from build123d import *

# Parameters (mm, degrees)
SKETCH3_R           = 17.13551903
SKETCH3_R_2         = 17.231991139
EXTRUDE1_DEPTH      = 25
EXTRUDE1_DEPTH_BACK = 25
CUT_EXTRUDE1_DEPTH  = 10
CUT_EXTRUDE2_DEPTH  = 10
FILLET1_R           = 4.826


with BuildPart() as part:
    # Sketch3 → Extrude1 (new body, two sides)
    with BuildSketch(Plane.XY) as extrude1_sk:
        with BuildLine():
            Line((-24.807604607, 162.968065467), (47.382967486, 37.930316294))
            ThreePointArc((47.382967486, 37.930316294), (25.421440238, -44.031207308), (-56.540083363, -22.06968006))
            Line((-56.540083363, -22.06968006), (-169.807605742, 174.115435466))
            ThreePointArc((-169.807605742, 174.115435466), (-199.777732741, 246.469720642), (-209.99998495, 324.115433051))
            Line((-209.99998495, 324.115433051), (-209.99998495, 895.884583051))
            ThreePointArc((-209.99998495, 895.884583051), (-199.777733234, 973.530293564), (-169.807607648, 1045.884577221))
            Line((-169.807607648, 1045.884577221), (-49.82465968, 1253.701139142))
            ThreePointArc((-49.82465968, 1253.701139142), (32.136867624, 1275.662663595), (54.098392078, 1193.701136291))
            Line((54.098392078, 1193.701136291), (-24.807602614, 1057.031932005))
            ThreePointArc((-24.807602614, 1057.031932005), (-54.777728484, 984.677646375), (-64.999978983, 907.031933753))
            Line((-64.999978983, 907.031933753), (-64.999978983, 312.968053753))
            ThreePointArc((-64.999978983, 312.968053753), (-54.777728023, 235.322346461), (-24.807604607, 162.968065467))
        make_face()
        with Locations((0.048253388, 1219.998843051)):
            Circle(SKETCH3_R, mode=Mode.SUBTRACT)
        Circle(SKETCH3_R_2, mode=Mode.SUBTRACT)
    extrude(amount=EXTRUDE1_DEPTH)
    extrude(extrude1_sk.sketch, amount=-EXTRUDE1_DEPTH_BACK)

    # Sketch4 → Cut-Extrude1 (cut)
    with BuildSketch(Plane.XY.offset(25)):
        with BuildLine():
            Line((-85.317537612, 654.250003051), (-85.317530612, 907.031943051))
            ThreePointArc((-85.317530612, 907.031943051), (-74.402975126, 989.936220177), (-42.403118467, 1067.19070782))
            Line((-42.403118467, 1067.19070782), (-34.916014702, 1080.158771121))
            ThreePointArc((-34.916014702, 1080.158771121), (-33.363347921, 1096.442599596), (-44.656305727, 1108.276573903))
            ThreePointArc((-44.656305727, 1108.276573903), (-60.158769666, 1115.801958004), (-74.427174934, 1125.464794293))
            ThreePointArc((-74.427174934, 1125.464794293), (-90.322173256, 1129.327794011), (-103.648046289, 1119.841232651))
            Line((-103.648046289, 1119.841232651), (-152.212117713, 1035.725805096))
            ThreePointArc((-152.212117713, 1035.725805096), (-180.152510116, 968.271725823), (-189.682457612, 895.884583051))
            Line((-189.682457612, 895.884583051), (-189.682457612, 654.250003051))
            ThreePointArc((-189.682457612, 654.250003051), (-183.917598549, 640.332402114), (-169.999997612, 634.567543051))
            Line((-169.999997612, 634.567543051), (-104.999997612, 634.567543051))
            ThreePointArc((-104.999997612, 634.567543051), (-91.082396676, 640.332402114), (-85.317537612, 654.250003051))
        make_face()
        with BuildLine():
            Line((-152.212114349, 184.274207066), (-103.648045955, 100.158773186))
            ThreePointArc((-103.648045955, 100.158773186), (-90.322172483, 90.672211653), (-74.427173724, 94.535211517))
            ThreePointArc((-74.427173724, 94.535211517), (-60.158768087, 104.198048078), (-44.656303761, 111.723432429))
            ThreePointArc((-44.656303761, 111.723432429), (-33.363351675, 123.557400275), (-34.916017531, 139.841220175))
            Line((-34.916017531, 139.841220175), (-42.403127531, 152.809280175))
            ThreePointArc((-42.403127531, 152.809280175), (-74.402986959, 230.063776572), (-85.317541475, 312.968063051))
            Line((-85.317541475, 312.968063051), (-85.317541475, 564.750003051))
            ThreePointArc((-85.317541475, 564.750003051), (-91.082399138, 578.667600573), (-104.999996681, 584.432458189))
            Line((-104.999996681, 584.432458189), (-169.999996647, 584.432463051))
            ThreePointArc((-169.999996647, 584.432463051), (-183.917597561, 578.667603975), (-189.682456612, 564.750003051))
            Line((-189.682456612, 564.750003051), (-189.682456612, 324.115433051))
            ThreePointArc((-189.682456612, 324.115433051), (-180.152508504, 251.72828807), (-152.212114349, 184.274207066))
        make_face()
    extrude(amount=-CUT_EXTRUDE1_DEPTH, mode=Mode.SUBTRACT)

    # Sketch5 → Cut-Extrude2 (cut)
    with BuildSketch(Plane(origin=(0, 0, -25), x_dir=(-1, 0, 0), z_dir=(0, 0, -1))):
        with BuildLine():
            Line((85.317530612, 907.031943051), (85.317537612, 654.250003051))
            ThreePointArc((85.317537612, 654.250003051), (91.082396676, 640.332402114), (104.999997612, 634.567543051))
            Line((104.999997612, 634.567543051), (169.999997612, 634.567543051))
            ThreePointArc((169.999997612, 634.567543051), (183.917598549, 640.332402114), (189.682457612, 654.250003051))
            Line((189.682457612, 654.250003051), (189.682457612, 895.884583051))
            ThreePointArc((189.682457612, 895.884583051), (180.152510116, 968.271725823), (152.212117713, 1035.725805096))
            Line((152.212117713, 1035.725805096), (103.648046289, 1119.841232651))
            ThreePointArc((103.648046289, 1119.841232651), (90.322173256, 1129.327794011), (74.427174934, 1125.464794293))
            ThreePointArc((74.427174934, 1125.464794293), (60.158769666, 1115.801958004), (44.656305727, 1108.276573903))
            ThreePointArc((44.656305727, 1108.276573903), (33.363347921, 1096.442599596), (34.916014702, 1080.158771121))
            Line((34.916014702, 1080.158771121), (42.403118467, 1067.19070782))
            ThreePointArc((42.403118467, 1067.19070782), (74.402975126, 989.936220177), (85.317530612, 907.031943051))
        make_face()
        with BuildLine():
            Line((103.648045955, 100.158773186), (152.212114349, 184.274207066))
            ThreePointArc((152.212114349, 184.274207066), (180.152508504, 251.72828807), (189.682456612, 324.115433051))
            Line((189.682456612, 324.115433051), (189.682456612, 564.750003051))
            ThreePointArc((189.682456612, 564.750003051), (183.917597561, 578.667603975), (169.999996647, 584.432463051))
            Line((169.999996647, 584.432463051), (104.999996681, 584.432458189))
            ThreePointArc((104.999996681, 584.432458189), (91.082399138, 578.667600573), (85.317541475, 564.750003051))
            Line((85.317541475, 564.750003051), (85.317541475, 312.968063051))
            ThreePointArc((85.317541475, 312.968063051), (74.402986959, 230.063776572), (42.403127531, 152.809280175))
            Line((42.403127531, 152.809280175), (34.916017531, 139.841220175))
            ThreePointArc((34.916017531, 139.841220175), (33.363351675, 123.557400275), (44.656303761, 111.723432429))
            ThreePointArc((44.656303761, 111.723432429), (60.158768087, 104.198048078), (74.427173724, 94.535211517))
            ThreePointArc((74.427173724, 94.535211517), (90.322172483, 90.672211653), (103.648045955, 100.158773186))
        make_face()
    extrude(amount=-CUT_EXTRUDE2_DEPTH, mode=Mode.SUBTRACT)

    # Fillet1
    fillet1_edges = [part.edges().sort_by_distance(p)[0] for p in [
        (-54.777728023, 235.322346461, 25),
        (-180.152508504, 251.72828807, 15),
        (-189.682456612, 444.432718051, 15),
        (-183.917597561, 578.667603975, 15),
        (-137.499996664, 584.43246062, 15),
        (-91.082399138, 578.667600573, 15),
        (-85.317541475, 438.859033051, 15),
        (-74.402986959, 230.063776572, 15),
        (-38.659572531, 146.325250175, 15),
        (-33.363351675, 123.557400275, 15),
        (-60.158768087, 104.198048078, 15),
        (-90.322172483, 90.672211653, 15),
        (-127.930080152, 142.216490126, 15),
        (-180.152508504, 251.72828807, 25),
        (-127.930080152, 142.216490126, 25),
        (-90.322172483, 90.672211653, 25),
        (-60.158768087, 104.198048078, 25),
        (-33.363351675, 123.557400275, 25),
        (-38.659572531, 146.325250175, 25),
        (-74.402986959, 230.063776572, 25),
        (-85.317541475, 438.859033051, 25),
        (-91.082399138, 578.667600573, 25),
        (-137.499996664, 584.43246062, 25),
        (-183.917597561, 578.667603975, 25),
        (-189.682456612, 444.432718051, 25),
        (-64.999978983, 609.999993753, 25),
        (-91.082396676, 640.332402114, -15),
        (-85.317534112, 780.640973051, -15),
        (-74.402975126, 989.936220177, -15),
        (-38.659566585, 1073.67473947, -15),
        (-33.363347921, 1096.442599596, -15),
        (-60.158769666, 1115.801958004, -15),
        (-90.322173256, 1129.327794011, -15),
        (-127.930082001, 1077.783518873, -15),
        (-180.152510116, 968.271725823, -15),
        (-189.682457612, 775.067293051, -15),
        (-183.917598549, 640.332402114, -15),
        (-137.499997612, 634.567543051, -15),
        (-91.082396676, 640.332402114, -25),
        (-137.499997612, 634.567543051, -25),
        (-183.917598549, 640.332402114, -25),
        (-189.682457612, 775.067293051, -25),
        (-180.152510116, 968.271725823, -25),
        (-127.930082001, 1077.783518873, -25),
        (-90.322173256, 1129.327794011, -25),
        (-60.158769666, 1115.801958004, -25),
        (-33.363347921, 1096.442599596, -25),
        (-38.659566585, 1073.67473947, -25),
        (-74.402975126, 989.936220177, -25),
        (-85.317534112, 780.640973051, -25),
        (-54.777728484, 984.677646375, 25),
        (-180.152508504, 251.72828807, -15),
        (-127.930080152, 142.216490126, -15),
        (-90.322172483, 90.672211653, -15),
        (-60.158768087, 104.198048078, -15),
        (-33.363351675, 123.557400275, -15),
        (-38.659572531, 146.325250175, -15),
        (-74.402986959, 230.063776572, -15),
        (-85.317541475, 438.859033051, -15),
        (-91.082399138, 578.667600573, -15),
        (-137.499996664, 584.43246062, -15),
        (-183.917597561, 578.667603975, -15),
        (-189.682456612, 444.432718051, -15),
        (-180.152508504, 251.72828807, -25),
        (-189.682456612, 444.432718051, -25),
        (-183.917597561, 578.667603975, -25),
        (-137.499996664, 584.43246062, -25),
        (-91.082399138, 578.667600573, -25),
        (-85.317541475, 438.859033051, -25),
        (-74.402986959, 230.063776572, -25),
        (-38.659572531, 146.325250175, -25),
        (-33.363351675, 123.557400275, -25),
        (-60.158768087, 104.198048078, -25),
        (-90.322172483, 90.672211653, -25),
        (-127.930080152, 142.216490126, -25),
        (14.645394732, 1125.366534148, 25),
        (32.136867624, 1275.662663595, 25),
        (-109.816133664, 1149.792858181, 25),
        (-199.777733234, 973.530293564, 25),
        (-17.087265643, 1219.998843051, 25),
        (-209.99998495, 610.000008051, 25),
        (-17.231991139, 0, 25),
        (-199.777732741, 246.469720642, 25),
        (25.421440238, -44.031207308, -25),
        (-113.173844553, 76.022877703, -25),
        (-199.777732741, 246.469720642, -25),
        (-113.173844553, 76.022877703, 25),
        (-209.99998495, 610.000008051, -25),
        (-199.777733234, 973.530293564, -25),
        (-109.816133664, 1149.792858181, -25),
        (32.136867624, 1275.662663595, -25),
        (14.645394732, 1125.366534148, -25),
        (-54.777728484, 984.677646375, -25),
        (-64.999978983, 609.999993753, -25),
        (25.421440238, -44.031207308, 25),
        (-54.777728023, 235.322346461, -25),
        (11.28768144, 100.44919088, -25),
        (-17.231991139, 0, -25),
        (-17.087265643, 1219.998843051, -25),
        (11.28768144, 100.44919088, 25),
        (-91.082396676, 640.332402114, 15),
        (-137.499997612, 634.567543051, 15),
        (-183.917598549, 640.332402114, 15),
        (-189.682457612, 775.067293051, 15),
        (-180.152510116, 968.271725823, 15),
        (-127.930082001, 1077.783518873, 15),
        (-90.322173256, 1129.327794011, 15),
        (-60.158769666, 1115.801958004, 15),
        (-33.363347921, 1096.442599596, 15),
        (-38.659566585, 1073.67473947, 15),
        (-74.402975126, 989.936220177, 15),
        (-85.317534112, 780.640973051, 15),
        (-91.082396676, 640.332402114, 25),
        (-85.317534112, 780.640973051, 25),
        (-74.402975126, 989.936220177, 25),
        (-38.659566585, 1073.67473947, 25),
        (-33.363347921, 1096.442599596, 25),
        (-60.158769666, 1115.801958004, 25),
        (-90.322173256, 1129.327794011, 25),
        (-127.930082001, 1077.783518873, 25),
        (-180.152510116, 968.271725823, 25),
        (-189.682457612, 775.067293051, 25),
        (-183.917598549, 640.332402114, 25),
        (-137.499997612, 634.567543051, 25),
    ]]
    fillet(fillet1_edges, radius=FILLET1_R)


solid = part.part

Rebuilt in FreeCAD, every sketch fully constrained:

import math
import FreeCAD as App
import Part
import Sketcher

V = App.Vector


def edges_at(feature, points):
    """Names of the edges that pass closest to the given points."""
    edges = feature.Shape.Edges
    near = lambda p: min(range(len(edges)), key=lambda i: edges[i].distToShape(Part.Vertex(*p))[0])
    return sorted({f"Edge{near(p) + 1}" for p in points})

doc = App.newDocument("Part")
body = doc.addObject("PartDesign::Body", "Body")

sketch1 = body.newObject("Sketcher::SketchObject", "Sketch")
sketch1.AttachmentSupport = (doc.getObject("XY_Plane"), [""])
sketch1.MapMode = "FlatFace"
sketch1.addGeometry([
    Part.LineSegment(V(47.382967, 37.930316, 0), V(-24.807605, 162.968065, 0)),
    Part.ArcOfCircle(Part.Circle(V(235.000006, 312.968054, 0), V(0, 0, 1), 299.999985), math.radians(180), math.radians(209.999999)),
    Part.LineSegment(V(-64.999979, 312.968054, 0), V(-64.999979, 907.031934, 0)),
    Part.ArcOfCircle(Part.Circle(V(235.000002, 907.031941, 0), V(0, 0, 1), 299.999981), math.radians(150), math.radians(180.000001)),
    Part.LineSegment(V(-24.807603, 1057.031932, 0), V(54.098392, 1193.701136, 0)),
    Part.ArcOfCircle(Part.Circle(V(2.136866, 1223.701138, 0), V(0, 0, 1), 60.000002), math.radians(-30), math.radians(150)),
    Part.LineSegment(V(-49.82466, 1253.701139, 0), V(-169.807608, 1045.884577, 0)),
    Part.ArcOfCircle(Part.Circle(V(90.000003, 895.884583, 0), V(0, 0, 1), 299.999988), math.radians(150), math.radians(180)),
    Part.LineSegment(V(-209.999985, 895.884583, 0), V(-209.999985, 324.115433, 0)),
    Part.ArcOfCircle(Part.Circle(V(90.000004, 324.115433, 0), V(0, 0, 1), 299.999989), math.radians(180), math.radians(210.000001)),
    Part.LineSegment(V(-169.807606, 174.115435, 0), V(-56.540083, -22.06968, 0)),
    Part.ArcOfCircle(Part.Circle(V(-4.578558, 7.930318, 0), V(0, 0, 1), 60), math.radians(-150.000002), math.radians(29.999998)),
    Part.Circle(V(0, 0, 0), V(0, 0, 1), 17.231991),
    Part.Circle(V(0.048253, 1219.998843, 0), V(0, 0, 1), 17.135519),
], False)
sketch1.addConstraint([
    Sketcher.Constraint("Coincident", 0, 2, 1, 2),
    Sketcher.Constraint("Coincident", 1, 1, 2, 1),
    Sketcher.Constraint("Coincident", 2, 2, 3, 2),
    Sketcher.Constraint("Coincident", 3, 1, 4, 1),
    Sketcher.Constraint("Coincident", 4, 2, 5, 1),
    Sketcher.Constraint("Coincident", 5, 2, 6, 1),
    Sketcher.Constraint("Coincident", 6, 2, 7, 1),
    Sketcher.Constraint("Coincident", 7, 2, 8, 1),
    Sketcher.Constraint("Coincident", 8, 2, 9, 1),
    Sketcher.Constraint("Coincident", 9, 2, 10, 1),
    Sketcher.Constraint("Coincident", 10, 2, 11, 1),
    Sketcher.Constraint("Coincident", 11, 2, 0, 1),
    Sketcher.Constraint("Vertical", 2),
    Sketcher.Constraint("Vertical", 8),
    Sketcher.Constraint("Coincident", 12, 3, -1, 1),
    Sketcher.Constraint("Radius", 11, 60.0),
    Sketcher.Constraint("DistanceX", 7, 3, 3, 3, 144.999999),
    Sketcher.Constraint("DistanceX", 9, 3, 3, 3, 144.999999),
    Sketcher.Constraint("DistanceY", 2, 2, 3, 1, 149.999998),
    Sketcher.Constraint("DistanceY", 4, 2, 5, 3, 30.000001),
    Sketcher.Constraint("DistanceY", 5, 3, 5, 2, 30.000001),
    Sketcher.Constraint("DistanceX", 9, 2, 0, 2, 145.000001),
    Sketcher.Constraint("DistanceY", 10, 2, 11, 3, 29.999998),
    Sketcher.Constraint("DistanceY", 11, 3, 11, 2, 29.999998),
    Sketcher.Constraint("Diameter", 13, 34.271038),
    Sketcher.Constraint("Radius", 3, 299.999981),
    Sketcher.Constraint("Radius", 7, 299.999988),
    Sketcher.Constraint("Distance", 4, 157.812),
    Sketcher.Constraint("Diameter", 12, 34.463982),
    Sketcher.Constraint("Radius", 1, 299.999985),
    Sketcher.Constraint("Radius", 5, 60.000002),
    Sketcher.Constraint("DistanceY", 2, 1, 2, 2, 594.06388),
    Sketcher.Constraint("DistanceY", 8, 2, 8, 1, 571.76915),
    Sketcher.Constraint("DistanceY", 3, 3, 13, 3, 312.966902),
    Sketcher.Constraint("DistanceY", -1, 1, 3, 3, 907.031941),
    Sketcher.Constraint("DistanceY", -1, 1, 11, 3, 7.930318),
    Sketcher.Constraint("DistanceX", 1, 1, -1, 1, 64.999979),
    Sketcher.Constraint("DistanceX", 5, 2, -1, 1, 49.82466),
    Sketcher.Constraint("DistanceY", -1, 1, 5, 2, 1253.701139),
    Sketcher.Constraint("DistanceY", 7, 3, 3, 3, 11.147358),
    Sketcher.Constraint("DistanceY", 1, 3, 7, 3, 582.916529),
    Sketcher.Constraint("DistanceY", 1, 3, 9, 3, 11.147379),
    Sketcher.Constraint("DistanceX", 11, 3, 9, 3, 94.578562),
    Sketcher.Constraint("DistanceX", 13, 3, 7, 3, 89.95175),
    Sketcher.Constraint("DistanceX", 0, 2, 9, 3, 114.807608),
    Sketcher.Constraint("DistanceX", 6, 2, 2, 2, 104.807629),
    Sketcher.Constraint("DistanceY", 7, 2, 2, 2, 11.147351),
])
pad1 = body.newObject("PartDesign::Pad", "Pad")
pad1.Profile = sketch1
pad1.Type = "TwoLengths"
pad1.Length = 25
pad1.Length2 = 25

sketch2 = body.newObject("Sketcher::SketchObject", "Sketch001")
sketch2.AttachmentSupport = (doc.getObject("XY_Plane"), [""])
sketch2.MapMode = "FlatFace"
sketch2.AttachmentOffset = App.Placement(V(0, 0, 25), App.Rotation())
sketch2.addGeometry([
    Part.LineSegment(V(-85.317538, 654.250003, 0), V(-85.317531, 907.031943, 0)),
    Part.ArcOfCircle(Part.Circle(V(235.000002, 907.031941, 0), V(0, 0, 1), 320.317533), math.radians(150), math.radians(180)),
    Part.LineSegment(V(-42.403118, 1067.190708, 0), V(-34.916015, 1080.158771, 0)),
    Part.ArcOfCircle(Part.Circle(V(-51.961527, 1090.000002, 0), V(0, 0, 1), 19.682462), math.radians(-30.000001), math.radians(68.213205)),
    Part.ArcOfCircle(Part.Circle(V(0.000003, 1220.000003, 0), V(0, 0, 1), 120.31754), math.radians(-128.213212), math.radians(-111.786791)),
    Part.ArcOfCircle(Part.Circle(V(-86.602537, 1110.000003, 0), V(0, 0, 1), 19.682459), math.radians(51.786798), math.radians(150)),
    Part.LineSegment(V(-103.648046, 1119.841233, 0), V(-152.212118, 1035.725805, 0)),
    Part.ArcOfCircle(Part.Circle(V(90.000003, 895.884583, 0), V(0, 0, 1), 279.682461), math.radians(150.000002), math.radians(180)),
    Part.LineSegment(V(-189.682458, 895.884583, 0), V(-189.682458, 654.250003, 0)),
    Part.ArcOfCircle(Part.Circle(V(-169.999998, 654.250003, 0), V(0, 0, 1), 19.68246), math.radians(180), math.radians(270)),
    Part.LineSegment(V(-169.999998, 634.567543, 0), V(-104.999998, 634.567543, 0)),
    Part.ArcOfCircle(Part.Circle(V(-104.999998, 654.250003, 0), V(0, 0, 1), 19.68246), math.radians(-90), math.radians(0)),
    Part.LineSegment(V(-152.212114, 184.274207, 0), V(-103.648046, 100.158773, 0)),
    Part.ArcOfCircle(Part.Circle(V(-86.602536, 110.000003, 0), V(0, 0, 1), 19.68246), math.radians(-149.999999), math.radians(-51.786798)),
    Part.ArcOfCircle(Part.Circle(V(0.000007, -0.000001, 0), V(0, 0, 1), 120.317545), math.radians(111.786791), math.radians(128.213212)),
    Part.ArcOfCircle(Part.Circle(V(-51.961521, 129.999994, 0), V(0, 0, 1), 19.682452), math.radians(-68.213207), math.radians(30.000001)),
    Part.LineSegment(V(-34.916018, 139.84122, 0), V(-42.403128, 152.80928, 0)),
    Part.ArcOfCircle(Part.Circle(V(235.000006, 312.968054, 0), V(0, 0, 1), 320.317548), math.radians(179.999998), math.radians(210)),
    Part.LineSegment(V(-85.317541, 312.968063, 0), V(-85.317541, 564.750003, 0)),
    Part.ArcOfCircle(Part.Circle(V(-104.999997, 564.750003, 0), V(0, 0, 1), 19.682455), math.radians(0), math.radians(90)),
    Part.LineSegment(V(-104.999997, 584.432458, 0), V(-169.999997, 584.432463, 0)),
    Part.ArcOfCircle(Part.Circle(V(-169.999997, 564.750003, 0), V(0, 0, 1), 19.68246), math.radians(90), math.radians(180)),
    Part.LineSegment(V(-189.682457, 564.750003, 0), V(-189.682457, 324.115433, 0)),
    Part.ArcOfCircle(Part.Circle(V(90.000004, 324.115433, 0), V(0, 0, 1), 279.68246), math.radians(180), math.radians(209.999999)),
], False)
sketch2.addConstraint([
    Sketcher.Constraint("Coincident", 0, 2, 1, 2),
    Sketcher.Constraint("Coincident", 1, 1, 2, 1),
    Sketcher.Constraint("Coincident", 2, 2, 3, 1),
    Sketcher.Constraint("Coincident", 3, 2, 4, 2),
    Sketcher.Constraint("Coincident", 4, 1, 5, 1),
    Sketcher.Constraint("Coincident", 5, 2, 6, 1),
    Sketcher.Constraint("Coincident", 6, 2, 7, 1),
    Sketcher.Constraint("Coincident", 7, 2, 8, 1),
    Sketcher.Constraint("Coincident", 8, 2, 9, 1),
    Sketcher.Constraint("Coincident", 9, 2, 10, 1),
    Sketcher.Constraint("Coincident", 10, 2, 11, 1),
    Sketcher.Constraint("Coincident", 11, 2, 0, 1),
    Sketcher.Constraint("Coincident", 12, 2, 13, 1),
    Sketcher.Constraint("Coincident", 13, 2, 14, 2),
    Sketcher.Constraint("Coincident", 14, 1, 15, 1),
    Sketcher.Constraint("Coincident", 15, 2, 16, 1),
    Sketcher.Constraint("Coincident", 16, 2, 17, 2),
    Sketcher.Constraint("Coincident", 17, 1, 18, 1),
    Sketcher.Constraint("Coincident", 18, 2, 19, 1),
    Sketcher.Constraint("Coincident", 19, 2, 20, 1),
    Sketcher.Constraint("Coincident", 20, 2, 21, 1),
    Sketcher.Constraint("Coincident", 21, 2, 22, 1),
    Sketcher.Constraint("Coincident", 22, 2, 23, 1),
    Sketcher.Constraint("Coincident", 23, 2, 12, 1),
    Sketcher.Constraint("Vertical", 8),
    Sketcher.Constraint("Horizontal", 10),
    Sketcher.Constraint("Vertical", 18),
    Sketcher.Constraint("Vertical", 22),
    Sketcher.Constraint("Coincident", 14, 3, -1, 1),
    Sketcher.Constraint("DistanceX", 10, 1, 10, 2, 65.0),
    Sketcher.Constraint("Distance", 20, 65.0),
    Sketcher.Constraint("DistanceY", 3, 3, 4, 3, 130.0),
    Sketcher.Constraint("DistanceX", 4, 3, 1, 3, 234.999999),
    Sketcher.Constraint("DistanceY", 3, 3, 5, 3, 20.000001),
    Sketcher.Constraint("DistanceX", 7, 3, 1, 3, 144.999999),
    Sketcher.Constraint("DistanceX", 9, 3, 7, 3, 260.000001),
    Sketcher.Constraint("DistanceX", 9, 3, 11, 3, 65.0),
    Sketcher.Constraint("DistanceY", 13, 3, 3, 3, 979.999999),
    Sketcher.Constraint("DistanceX", 14, 3, 17, 3, 234.999999),
    Sketcher.Constraint("DistanceX", 9, 3, 19, 3, 65.000001),
    Sketcher.Constraint("DistanceX", 21, 3, 19, 3, 65.0),
    Sketcher.Constraint("DistanceX", 19, 3, 23, 3, 195.0),
    Sketcher.Constraint("DistanceX", 9, 2, 11, 3, 65.0),
    Sketcher.Constraint("DistanceX", 21, 3, 19, 2, 65.0),
    Sketcher.Constraint("DistanceY", 19, 3, 11, 3, 89.5),
    Sketcher.Constraint("DistanceY", 19, 3, 9, 3, 89.5),
    Sketcher.Constraint("DistanceY", 21, 3, 9, 3, 89.5),
    Sketcher.Constraint("DistanceY", 21, 3, 8, 2, 89.5),
    Sketcher.Constraint("DistanceY", 19, 3, 11, 2, 89.5),
    Sketcher.Constraint("DistanceY", 18, 2, 11, 2, 89.5),
    Sketcher.Constraint("Radius", 4, 120.31754),
    Sketcher.Constraint("Radius", 5, 19.682459),
    Sketcher.Constraint("Radius", 7, 279.682461),
    Sketcher.Constraint("Radius", 13, 19.68246),
    Sketcher.Constraint("Radius", 15, 19.682452),
    Sketcher.Constraint("Radius", 21, 19.68246),
    Sketcher.Constraint("DistanceY", 9, 3, 3, 3, 435.749999),
    Sketcher.Constraint("Radius", 1, 320.317533),
    Sketcher.Constraint("Radius", 3, 19.682462),
    Sketcher.Constraint("Radius", 14, 120.317545),
    Sketcher.Constraint("Radius", 17, 320.317548),
    Sketcher.Constraint("Radius", 19, 19.682455),
    Sketcher.Constraint("DistanceX", 6, 2, 1, 1, 109.808999),
    Sketcher.Constraint("DistanceY", 8, 2, 8, 1, 241.63458),
    Sketcher.Constraint("DistanceY", 18, 1, 18, 2, 251.78194),
    Sketcher.Constraint("DistanceY", 22, 2, 22, 1, 240.63457),
    Sketcher.Constraint("Distance", 0, 252.78194),
    Sketcher.Constraint("DistanceY", -1, 1, 1, 3, 907.031941),
    Sketcher.Constraint("DistanceX", 15, 3, -1, 1, 51.961521),
    Sketcher.Constraint("DistanceX", 1, 1, -1, 1, 42.403118),
    Sketcher.Constraint("DistanceY", -1, 1, 2, 2, 1080.158771),
    Sketcher.Constraint("DistanceY", -1, 1, 13, 2, 94.535212),
    Sketcher.Constraint("DistanceY", -1, 1, 15, 2, 139.84122),
    Sketcher.Constraint("DistanceY", -1, 1, 16, 2, 152.80928),
    Sketcher.Constraint("DistanceY", -1, 1, 19, 2, 584.432458),
    Sketcher.Constraint("DistanceY", 7, 3, 1, 3, 11.147358),
    Sketcher.Constraint("DistanceY", 15, 3, 17, 3, 182.96806),
    Sketcher.Constraint("DistanceY", 17, 3, 23, 3, 11.147379),
    Sketcher.Constraint("DistanceX", 3, 3, 3, 2, 7.305221),
    Sketcher.Constraint("DistanceX", 5, 3, 4, 1, 12.175362),
    Sketcher.Constraint("DistanceX", 5, 2, 5, 3, 17.04551),
    Sketcher.Constraint("DistanceX", 12, 2, 13, 3, 17.04551),
    Sketcher.Constraint("DistanceY", 14, 1, 15, 3, 18.276562),
    Sketcher.Constraint("DistanceY", 21, 2, 20, 2, 19.68246),
    Sketcher.Constraint("DistanceX", 23, 2, 12, 2, 48.564068),
])
pocket1 = body.newObject("PartDesign::Pocket", "Pocket")
pocket1.Profile = sketch2
pocket1.Length = 10

sketch3 = body.newObject("Sketcher::SketchObject", "Sketch002")
sketch3.AttachmentSupport = (doc.getObject("XY_Plane"), [""])
sketch3.MapMode = "FlatFace"
sketch3.AttachmentOffset = App.Placement(V(0, 0, -25), App.Rotation())
sketch3.addGeometry([
    Part.LineSegment(V(-85.317531, 907.031943, 0), V(-85.317538, 654.250003, 0)),
    Part.ArcOfCircle(Part.Circle(V(-104.999998, 654.250003, 0), V(0, 0, 1), 19.68246), math.radians(-90), math.radians(0)),
    Part.LineSegment(V(-104.999998, 634.567543, 0), V(-169.999998, 634.567543, 0)),
    Part.ArcOfCircle(Part.Circle(V(-169.999998, 654.250003, 0), V(0, 0, 1), 19.68246), math.radians(180), math.radians(270)),
    Part.LineSegment(V(-189.682458, 654.250003, 0), V(-189.682458, 895.884583, 0)),
    Part.ArcOfCircle(Part.Circle(V(90.000003, 895.884583, 0), V(0, 0, 1), 279.682461), math.radians(150.000002), math.radians(180)),
    Part.LineSegment(V(-152.212118, 1035.725805, 0), V(-103.648046, 1119.841233, 0)),
    Part.ArcOfCircle(Part.Circle(V(-86.602537, 1110.000003, 0), V(0, 0, 1), 19.682459), math.radians(51.786798), math.radians(150)),
    Part.ArcOfCircle(Part.Circle(V(0.000003, 1220.000003, 0), V(0, 0, 1), 120.31754), math.radians(-128.213212), math.radians(-111.786791)),
    Part.ArcOfCircle(Part.Circle(V(-51.961527, 1090.000002, 0), V(0, 0, 1), 19.682462), math.radians(-30.000001), math.radians(68.213205)),
    Part.LineSegment(V(-34.916015, 1080.158771, 0), V(-42.403118, 1067.190708, 0)),
    Part.ArcOfCircle(Part.Circle(V(235.000002, 907.031941, 0), V(0, 0, 1), 320.317533), math.radians(150), math.radians(180)),
    Part.LineSegment(V(-103.648046, 100.158773, 0), V(-152.212114, 184.274207, 0)),
    Part.ArcOfCircle(Part.Circle(V(90.000004, 324.115433, 0), V(0, 0, 1), 279.68246), math.radians(180), math.radians(209.999999)),
    Part.LineSegment(V(-189.682457, 324.115433, 0), V(-189.682457, 564.750003, 0)),
    Part.ArcOfCircle(Part.Circle(V(-169.999997, 564.750003, 0), V(0, 0, 1), 19.68246), math.radians(90), math.radians(180)),
    Part.LineSegment(V(-169.999997, 584.432463, 0), V(-104.999997, 584.432458, 0)),
    Part.ArcOfCircle(Part.Circle(V(-104.999997, 564.750003, 0), V(0, 0, 1), 19.682455), math.radians(0), math.radians(90)),
    Part.LineSegment(V(-85.317541, 564.750003, 0), V(-85.317541, 312.968063, 0)),
    Part.ArcOfCircle(Part.Circle(V(235.000006, 312.968054, 0), V(0, 0, 1), 320.317548), math.radians(179.999998), math.radians(210)),
    Part.LineSegment(V(-42.403128, 152.80928, 0), V(-34.916018, 139.84122, 0)),
    Part.ArcOfCircle(Part.Circle(V(-51.961521, 129.999994, 0), V(0, 0, 1), 19.682452), math.radians(-68.213207), math.radians(30.000001)),
    Part.ArcOfCircle(Part.Circle(V(0.000007, -0.000001, 0), V(0, 0, 1), 120.317545), math.radians(111.786791), math.radians(128.213212)),
    Part.ArcOfCircle(Part.Circle(V(-86.602536, 110.000003, 0), V(0, 0, 1), 19.68246), math.radians(-149.999999), math.radians(-51.786798)),
], False)
sketch3.addConstraint([
    Sketcher.Constraint("Coincident", 0, 2, 1, 2),
    Sketcher.Constraint("Coincident", 1, 1, 2, 1),
    Sketcher.Constraint("Coincident", 2, 2, 3, 2),
    Sketcher.Constraint("Coincident", 3, 1, 4, 1),
    Sketcher.Constraint("Coincident", 4, 2, 5, 2),
    Sketcher.Constraint("Coincident", 5, 1, 6, 1),
    Sketcher.Constraint("Coincident", 6, 2, 7, 2),
    Sketcher.Constraint("Coincident", 7, 1, 8, 1),
    Sketcher.Constraint("Coincident", 8, 2, 9, 2),
    Sketcher.Constraint("Coincident", 9, 1, 10, 1),
    Sketcher.Constraint("Coincident", 10, 2, 11, 1),
    Sketcher.Constraint("Coincident", 11, 2, 0, 1),
    Sketcher.Constraint("Coincident", 12, 2, 13, 2),
    Sketcher.Constraint("Coincident", 13, 1, 14, 1),
    Sketcher.Constraint("Coincident", 14, 2, 15, 2),
    Sketcher.Constraint("Coincident", 15, 1, 16, 1),
    Sketcher.Constraint("Coincident", 16, 2, 17, 2),
    Sketcher.Constraint("Coincident", 17, 1, 18, 1),
    Sketcher.Constraint("Coincident", 18, 2, 19, 1),
    Sketcher.Constraint("Coincident", 19, 2, 20, 1),
    Sketcher.Constraint("Coincident", 20, 2, 21, 2),
    Sketcher.Constraint("Coincident", 21, 1, 22, 1),
    Sketcher.Constraint("Coincident", 22, 2, 23, 2),
    Sketcher.Constraint("Coincident", 23, 1, 12, 1),
    Sketcher.Constraint("Horizontal", 2),
    Sketcher.Constraint("Vertical", 4),
    Sketcher.Constraint("Vertical", 14),
    Sketcher.Constraint("Vertical", 18),
    Sketcher.Constraint("Coincident", 22, 3, -1, 1),
    Sketcher.Constraint("DistanceX", 2, 2, 2, 1, 65.0),
    Sketcher.Constraint("Distance", 16, 65.0),
    Sketcher.Constraint("DistanceX", 3, 3, 1, 3, 65.0),
    Sketcher.Constraint("DistanceX", 1, 3, 5, 3, 195.000001),
    Sketcher.Constraint("DistanceY", 7, 3, 8, 3, 110.0),
    Sketcher.Constraint("DistanceX", 8, 3, 5, 3, 90.0),
    Sketcher.Constraint("DistanceY", 9, 3, 7, 3, 20.000001),
    Sketcher.Constraint("DistanceX", 5, 3, 11, 3, 144.999999),
    Sketcher.Constraint("DistanceX", 1, 3, 13, 3, 195.000001),
    Sketcher.Constraint("DistanceX", 15, 3, 1, 3, 64.999999),
    Sketcher.Constraint("DistanceX", 15, 3, 17, 3, 65.0),
    Sketcher.Constraint("DistanceX", 22, 3, 19, 3, 234.999999),
    Sketcher.Constraint("DistanceX", 3, 3, 1, 1, 65.0),
    Sketcher.Constraint("DistanceX", 15, 1, 17, 3, 65.0),
    Sketcher.Constraint("DistanceY", 15, 3, 3, 3, 89.5),
    Sketcher.Constraint("DistanceY", 15, 3, 1, 3, 89.5),
    Sketcher.Constraint("DistanceY", 17, 3, 1, 3, 89.5),
    Sketcher.Constraint("DistanceY", 17, 3, 0, 2, 89.5),
    Sketcher.Constraint("DistanceY", 15, 3, 3, 1, 89.5),
    Sketcher.Constraint("DistanceY", 14, 2, 3, 1, 89.5),
    Sketcher.Constraint("Radius", 1, 19.68246),
    Sketcher.Constraint("Radius", 7, 19.682459),
    Sketcher.Constraint("Radius", 8, 120.31754),
    Sketcher.Constraint("Radius", 13, 279.68246),
    Sketcher.Constraint("Radius", 21, 19.682452),
    Sketcher.Constraint("Radius", 23, 19.68246),
    Sketcher.Constraint("DistanceY", 1, 3, 7, 3, 455.75),
    Sketcher.Constraint("DistanceY", 23, 3, 17, 3, 454.75),
    Sketcher.Constraint("Radius", 9, 19.682462),
    Sketcher.Constraint("Radius", 11, 320.317533),
    Sketcher.Constraint("Radius", 17, 19.682455),
    Sketcher.Constraint("Radius", 19, 320.317548),
    Sketcher.Constraint("Radius", 22, 120.317545),
    Sketcher.Constraint("DistanceY", 4, 1, 4, 2, 241.63458),
    Sketcher.Constraint("DistanceY", 14, 1, 14, 2, 240.63457),
    Sketcher.Constraint("DistanceY", 18, 2, 18, 1, 251.78194),
    Sketcher.Constraint("Distance", 0, 252.78194),
    Sketcher.Constraint("DistanceY", -1, 1, 11, 3, 907.031941),
    Sketcher.Constraint("DistanceX", 21, 3, -1, 1, 51.961521),
    Sketcher.Constraint("DistanceY", -1, 1, 9, 1, 1080.158771),
    Sketcher.Constraint("DistanceX", 10, 2, -1, 1, 42.403118),
    Sketcher.Constraint("DistanceY", -1, 1, 16, 2, 584.432458),
    Sketcher.Constraint("DistanceY", -1, 1, 19, 2, 152.80928),
    Sketcher.Constraint("DistanceY", -1, 1, 20, 2, 139.84122),
    Sketcher.Constraint("DistanceY", -1, 1, 22, 2, 94.535212),
    Sketcher.Constraint("DistanceY", 1, 3, 5, 3, 241.63458),
    Sketcher.Constraint("DistanceY", 13, 3, 1, 3, 330.13457),
    Sketcher.Constraint("DistanceY", 19, 3, 13, 3, 11.147379),
    Sketcher.Constraint("DistanceX", 5, 1, 7, 3, 65.609581),
    Sketcher.Constraint("DistanceX", 6, 2, 7, 3, 17.04551),
    Sketcher.Constraint("DistanceX", 7, 3, 7, 1, 12.175362),
    Sketcher.Constraint("DistanceX", 9, 3, 8, 2, 7.305221),
    Sketcher.Constraint("DistanceX", 12, 2, 23, 3, 65.609579),
    Sketcher.Constraint("DistanceY", 17, 1, 1, 1, 69.81754),
    Sketcher.Constraint("DistanceY", 21, 1, 21, 3, 18.276562),
    Sketcher.Constraint("DistanceX", 23, 1, 23, 3, 17.04551),
])
pocket2 = body.newObject("PartDesign::Pocket", "Pocket001")
pocket2.Profile = sketch3
pocket2.Length = 10
pocket2.Reversed = True
doc.recompute()

fillet = body.newObject("PartDesign::Fillet", "Fillet")
fillet.Base = (pocket2, edges_at(pocket2, [
    (-54.778, 235.322, 25),
    (-180.153, 251.728, 15),
    (-189.682, 444.433, 15),
    (-183.918, 578.668, 15),
    (-137.5, 584.432, 15),
    (-91.082, 578.668, 15),
    (-85.318, 438.859, 15),
    (-74.403, 230.064, 15),
    (-38.66, 146.325, 15),
    (-33.363, 123.557, 15),
    (-60.159, 104.198, 15),
    (-90.322, 90.672, 15),
    (-127.93, 142.216, 15),
    (-180.153, 251.728, 25),
    (-127.93, 142.216, 25),
    (-90.322, 90.672, 25),
    (-60.159, 104.198, 25),
    (-33.363, 123.557, 25),
    (-38.66, 146.325, 25),
    (-74.403, 230.064, 25),
    (-85.318, 438.859, 25),
    (-91.082, 578.668, 25),
    (-137.5, 584.432, 25),
    (-183.918, 578.668, 25),
    (-189.682, 444.433, 25),
    (-65, 610, 25),
    (-91.082, 640.332, -15),
    (-85.318, 780.641, -15),
    (-74.403, 989.936, -15),
    (-38.66, 1073.675, -15),
    (-33.363, 1096.443, -15),
    (-60.159, 1115.802, -15),
    (-90.322, 1129.328, -15),
    (-127.93, 1077.784, -15),
    (-180.153, 968.272, -15),
    (-189.682, 775.067, -15),
    (-183.918, 640.332, -15),
    (-137.5, 634.568, -15),
    (-91.082, 640.332, -25),
    (-137.5, 634.568, -25),
    (-183.918, 640.332, -25),
    (-189.682, 775.067, -25),
    (-180.153, 968.272, -25),
    (-127.93, 1077.784, -25),
    (-90.322, 1129.328, -25),
    (-60.159, 1115.802, -25),
    (-33.363, 1096.443, -25),
    (-38.66, 1073.675, -25),
    (-74.403, 989.936, -25),
    (-85.318, 780.641, -25),
    (-54.778, 984.678, 25),
    (-180.153, 251.728, -15),
    (-127.93, 142.216, -15),
    (-90.322, 90.672, -15),
    (-60.159, 104.198, -15),
    (-33.363, 123.557, -15),
    (-38.66, 146.325, -15),
    (-74.403, 230.064, -15),
    (-85.318, 438.859, -15),
    (-91.082, 578.668, -15),
    (-137.5, 584.432, -15),
    (-183.918, 578.668, -15),
    (-189.682, 444.433, -15),
    (-180.153, 251.728, -25),
    (-189.682, 444.433, -25),
    (-183.918, 578.668, -25),
    (-137.5, 584.432, -25),
    (-91.082, 578.668, -25),
    (-85.318, 438.859, -25),
    (-74.403, 230.064, -25),
    (-38.66, 146.325, -25),
    (-33.363, 123.557, -25),
    (-60.159, 104.198, -25),
    (-90.322, 90.672, -25),
    (-127.93, 142.216, -25),
    (14.645, 1125.367, 25),
    (32.137, 1275.663, 25),
    (-109.816, 1149.793, 25),
    (-199.778, 973.53, 25),
    (-17.087, 1219.999, 25),
    (-210, 610, 25),
    (-17.232, 0, 25),
    (-199.778, 246.47, 25),
    (25.421, -44.031, -25),
    (-113.174, 76.023, -25),
    (-199.778, 246.47, -25),
    (-113.174, 76.023, 25),
    (-210, 610, -25),
    (-199.778, 973.53, -25),
    (-109.816, 1149.793, -25),
    (32.137, 1275.663, -25),
    (14.645, 1125.367, -25),
    (-54.778, 984.678, -25),
    (-65, 610, -25),
    (25.421, -44.031, 25),
    (-54.778, 235.322, -25),
    (11.288, 100.449, -25),
    (-17.232, 0, -25),
    (-17.087, 1219.999, -25),
    (11.288, 100.449, 25),
    (-91.082, 640.332, 15),
    (-137.5, 634.568, 15),
    (-183.918, 640.332, 15),
    (-189.682, 775.067, 15),
    (-180.153, 968.272, 15),
    (-127.93, 1077.784, 15),
    (-90.322, 1129.328, 15),
    (-60.159, 1115.802, 15),
    (-33.363, 1096.443, 15),
    (-38.66, 1073.675, 15),
    (-74.403, 989.936, 15),
    (-85.318, 780.641, 15),
    (-91.082, 640.332, 25),
    (-85.318, 780.641, 25),
    (-74.403, 989.936, 25),
    (-38.66, 1073.675, 25),
    (-33.363, 1096.443, 25),
    (-60.159, 1115.802, 25),
    (-90.322, 1129.328, 25),
    (-127.93, 1077.784, 25),
    (-180.153, 968.272, 25),
    (-189.682, 775.067, 25),
    (-183.918, 640.332, 25),
    (-137.5, 634.568, 25),
]))
fillet.Radius = 4.826

doc.recompute()
